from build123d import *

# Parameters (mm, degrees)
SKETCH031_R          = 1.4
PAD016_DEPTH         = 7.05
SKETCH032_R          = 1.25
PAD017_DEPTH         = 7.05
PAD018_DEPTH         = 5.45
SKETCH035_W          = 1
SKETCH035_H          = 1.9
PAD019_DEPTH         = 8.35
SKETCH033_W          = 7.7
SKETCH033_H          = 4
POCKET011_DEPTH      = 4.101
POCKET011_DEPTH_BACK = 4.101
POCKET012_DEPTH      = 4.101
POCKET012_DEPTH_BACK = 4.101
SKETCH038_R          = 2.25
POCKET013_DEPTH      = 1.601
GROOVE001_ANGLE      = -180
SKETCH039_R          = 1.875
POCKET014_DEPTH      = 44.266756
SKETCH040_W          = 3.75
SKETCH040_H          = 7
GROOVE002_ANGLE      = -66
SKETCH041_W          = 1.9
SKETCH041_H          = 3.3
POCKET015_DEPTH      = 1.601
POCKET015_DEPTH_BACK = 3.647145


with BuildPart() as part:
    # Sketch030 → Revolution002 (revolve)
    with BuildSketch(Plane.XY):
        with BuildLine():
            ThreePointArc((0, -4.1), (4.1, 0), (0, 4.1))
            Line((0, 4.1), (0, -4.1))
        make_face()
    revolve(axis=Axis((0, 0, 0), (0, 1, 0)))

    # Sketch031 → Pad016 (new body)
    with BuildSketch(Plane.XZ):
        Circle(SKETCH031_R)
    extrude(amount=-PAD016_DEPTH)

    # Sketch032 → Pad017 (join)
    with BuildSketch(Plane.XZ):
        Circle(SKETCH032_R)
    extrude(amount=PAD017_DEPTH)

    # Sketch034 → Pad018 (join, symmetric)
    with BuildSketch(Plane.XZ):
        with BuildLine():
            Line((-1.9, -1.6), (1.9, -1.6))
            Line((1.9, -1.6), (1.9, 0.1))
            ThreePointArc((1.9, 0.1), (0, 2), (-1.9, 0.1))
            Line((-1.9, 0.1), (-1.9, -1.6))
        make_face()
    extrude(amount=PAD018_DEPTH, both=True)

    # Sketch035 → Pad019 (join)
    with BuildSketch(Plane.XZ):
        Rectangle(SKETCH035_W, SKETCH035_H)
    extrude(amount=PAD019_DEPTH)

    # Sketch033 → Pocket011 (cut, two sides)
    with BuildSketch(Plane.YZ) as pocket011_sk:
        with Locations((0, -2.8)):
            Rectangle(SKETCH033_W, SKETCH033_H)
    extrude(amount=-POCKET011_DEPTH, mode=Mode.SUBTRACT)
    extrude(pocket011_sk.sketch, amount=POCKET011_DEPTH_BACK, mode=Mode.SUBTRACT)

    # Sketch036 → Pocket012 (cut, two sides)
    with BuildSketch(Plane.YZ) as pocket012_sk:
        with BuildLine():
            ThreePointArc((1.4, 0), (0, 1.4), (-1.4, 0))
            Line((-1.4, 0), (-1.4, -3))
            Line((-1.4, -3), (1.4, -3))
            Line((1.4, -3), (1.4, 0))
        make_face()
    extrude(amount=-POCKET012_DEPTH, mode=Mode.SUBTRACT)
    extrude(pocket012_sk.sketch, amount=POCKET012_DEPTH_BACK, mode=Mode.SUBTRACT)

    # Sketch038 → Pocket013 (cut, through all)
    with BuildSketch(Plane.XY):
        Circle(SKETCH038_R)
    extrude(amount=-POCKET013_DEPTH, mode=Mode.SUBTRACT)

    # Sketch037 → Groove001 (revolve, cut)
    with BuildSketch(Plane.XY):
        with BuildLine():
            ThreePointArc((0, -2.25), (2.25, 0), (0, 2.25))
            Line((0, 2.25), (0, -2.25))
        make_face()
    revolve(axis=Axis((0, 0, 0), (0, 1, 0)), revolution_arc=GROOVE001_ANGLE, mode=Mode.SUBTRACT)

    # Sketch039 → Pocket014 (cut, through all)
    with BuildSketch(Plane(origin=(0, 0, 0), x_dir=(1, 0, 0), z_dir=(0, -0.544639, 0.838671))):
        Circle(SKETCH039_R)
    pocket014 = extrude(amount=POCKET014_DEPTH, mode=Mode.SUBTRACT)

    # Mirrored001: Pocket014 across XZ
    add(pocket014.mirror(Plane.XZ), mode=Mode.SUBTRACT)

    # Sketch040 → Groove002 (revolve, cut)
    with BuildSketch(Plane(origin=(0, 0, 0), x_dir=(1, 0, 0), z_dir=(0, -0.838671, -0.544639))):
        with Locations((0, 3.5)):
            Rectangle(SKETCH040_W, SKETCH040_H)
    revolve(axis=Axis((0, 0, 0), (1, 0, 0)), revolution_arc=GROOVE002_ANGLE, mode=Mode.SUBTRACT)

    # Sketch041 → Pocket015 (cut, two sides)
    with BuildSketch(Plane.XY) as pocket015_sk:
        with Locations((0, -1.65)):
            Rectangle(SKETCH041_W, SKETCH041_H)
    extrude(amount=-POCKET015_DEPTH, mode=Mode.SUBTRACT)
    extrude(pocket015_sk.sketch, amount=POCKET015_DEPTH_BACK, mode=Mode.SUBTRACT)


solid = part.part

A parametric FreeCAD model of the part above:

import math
import FreeCAD as App
import Part
import Sketcher
from FreeCAD import Vector
Q = App.Units.Quantity

doc = App.newDocument("Part")
params = doc.addObject("Spreadsheet::Sheet", "Params")
for row, (alias, value) in enumerate([
    ("sketch1_radius", "4.1 mm"),
    ("revolution_angle", "360 deg"),
    ("sketch2_diameter", "2.8 mm"),
    ("pad1_length", "7.05 mm"),
    ("sketch3_diameter", "2.5 mm"),
    ("pad2_length", "7.05 mm"),
    ("sketch4_radius", "1.9 mm"),
    ("sketch4_height", "1.7 mm"),
    ("pad3_length", "10.9 mm"),
    ("sketch5_width", "1 mm"),
    ("sketch5_height", "1.9 mm"),
    ("pad4_length", "8.35 mm"),
    ("sketch6_height", "4 mm"),
    ("sketch6_width", "7.7 mm"),
    ("sketch7_radius", "1.4 mm"),
    ("sketch7_height", "3 mm"),
    ("sketch8_diameter", "4.5 mm"),
    ("sketch9_radius", "2.25 mm"),
    ("groove_angle", "180 deg"),
    ("sketch10_diameter", "3.75 mm"),
    ("sketch11_height", "7 mm"),
    ("sketch11_width", "3.75 mm"),
    ("groove2_angle", "66 deg"),
    ("sketch12_width", "1.9 mm"),
    ("sketch12_height", "3.3 mm"),
], start=1):
    params.set(f"A{row}", alias)
    params.set(f"B{row}", "=" + value)
    params.setAlias(f"B{row}", alias)

body = doc.addObject("PartDesign::Body", "Body")

sketch1 = body.newObject("Sketcher::SketchObject", "Sketch")
sketch1.AttachmentSupport = (doc.getObject("XY_Plane"), [""])
sketch1.MapMode = "FlatFace"
sketch1.addGeometry(Part.ArcOfCircle(Part.Circle(Vector(0, 0, 0), Vector(0, 0, 1), 4.1), math.radians(-90), math.radians(90)), False)
sketch1.addGeometry(Part.LineSegment(Vector(0, 4.1, 0), Vector(0, -4.1, 0)), False)
sketch1.addConstraint(Sketcher.Constraint("Coincident", 0, 1, 1, 2))
sketch1.addConstraint(Sketcher.Constraint("Coincident", 1, 1, 0, 2))
sketch1.addConstraint(Sketcher.Constraint("Vertical", 1))
sketch1.addConstraint(Sketcher.Constraint("Coincident", 0, 3, -1, 1))
sketch1.addConstraint(Sketcher.Constraint("PointOnObject", 0, 1, -2))
sketch1.addConstraint(Sketcher.Constraint("Radius", 0, Q("4.1 mm")))
sketch1.setExpression("Constraints[5]", "Params.sketch1_radius")
revolution = body.newObject("PartDesign::Revolution", "Revolution")
revolution.Profile = sketch1
revolution.ReferenceAxis = (sketch1, ["V_Axis"])
revolution.setExpression("Angle", "Params.revolution_angle")

sketch2 = body.newObject("Sketcher::SketchObject", "Sketch001")
sketch2.AttachmentSupport = (doc.getObject("XZ_Plane"), [""])
sketch2.MapMode = "FlatFace"
sketch2.addGeometry(Part.Circle(Vector(0, 0, 0), Vector(0, 0, 1), 1.4), False)
sketch2.addConstraint(Sketcher.Constraint("Coincident", 0, 3, -1, 1))
sketch2.addConstraint(Sketcher.Constraint("Diameter", 0, Q("2.8 mm")))
sketch2.setExpression("Constraints[1]", "Params.sketch2_diameter")
pad1 = body.newObject("PartDesign::Pad", "Pad")
pad1.Profile = sketch2
pad1.setExpression("Length", "Params.pad1_length")
pad1.Reversed = True

sketch3 = body.newObject("Sketcher::SketchObject", "Sketch002")
sketch3.AttachmentSupport = (doc.getObject("XZ_Plane"), [""])
sketch3.MapMode = "FlatFace"
sketch3.addGeometry(Part.Circle(Vector(0, 0, 0), Vector(0, 0, 1), 1.2), False)
sketch3.addConstraint(Sketcher.Constraint("Coincident", 0, 3, -1, 1))
sketch3.addConstraint(Sketcher.Constraint("Diameter", 0, Q("2.5 mm")))
sketch3.setExpression("Constraints[1]", "Params.sketch3_diameter")
pad2 = body.newObject("PartDesign::Pad", "Pad001")
pad2.Profile = sketch3
pad2.setExpression("Length", "Params.pad2_length")

sketch4 = body.newObject("Sketcher::SketchObject", "Sketch003")
sketch4.AttachmentSupport = (doc.getObject("XZ_Plane"), [""])
sketch4.MapMode = "FlatFace"
sketch4.addGeometry(Part.LineSegment(Vector(-1.9, -1.6, 0), Vector(1.9, -1.6, 0)), False)
sketch4.addGeometry(Part.LineSegment(Vector(1.9, -1.6, 0), Vector(1.9, 0.1, 0)), False)
sketch4.addGeometry(Part.ArcOfCircle(Part.Circle(Vector(0, 0.1, 0), Vector(0, 0, 1), 1.9), math.radians(0), math.radians(180)), False)
sketch4.addGeometry(Part.LineSegment(Vector(-1.9, 0.1, 0), Vector(-1.9, -1.6, 0)), False)
sketch4.addConstraint(Sketcher.Constraint("Coincident", 0, 2, 1, 1))
sketch4.addConstraint(Sketcher.Constraint("Tangent", 1, 2, 2, 1))
sketch4.addConstraint(Sketcher.Constraint("Tangent", 2, 2, 3, 1))
sketch4.addConstraint(Sketcher.Constraint("Coincident", 3, 2, 0, 1))
sketch4.addConstraint(Sketcher.Constraint("Horizontal", 0))
sketch4.addConstraint(Sketcher.Constraint("Vertical", 1))
sketch4.addConstraint(Sketcher.Constraint("Vertical", 3))
sketch4.addConstraint(Sketcher.Constraint("PointOnObject", 2, 3, -2))
sketch4.addConstraint(Sketcher.Constraint("Radius", 2, Q("1.9 mm")))
sketch4.addConstraint(Sketcher.Constraint("DistanceY", 1, 1, 1, 2, Q("1.7 mm")))
sketch4.addConstraint(Sketcher.Constraint("DistanceY", -1, 1, 2, 3, Q("0.1 mm")))
sketch4.setExpression("Constraints[8]", "Params.sketch4_radius")
sketch4.setExpression("Constraints[9]", "Params.sketch4_height")
pad3 = body.newObject("PartDesign::Pad", "Pad002")
pad3.Profile = sketch4
pad3.setExpression("Length", "Params.pad3_length")
pad3.Midplane = True

sketch5 = body.newObject("Sketcher::SketchObject", "Sketch004")
sketch5.AttachmentSupport = (doc.getObject("XZ_Plane"), [""])
sketch5.MapMode = "FlatFace"
sketch5.addGeometry(Part.LineSegment(Vector(-0.5, 0.9, 0), Vector(-0.5, -0.9, 0)), False)
sketch5.addGeometry(Part.LineSegment(Vector(-0.5, -0.9, 0), Vector(0.5, -0.9, 0)), False)
sketch5.addGeometry(Part.LineSegment(Vector(0.5, -0.9, 0), Vector(0.5, 0.9, 0)), False)
sketch5.addGeometry(Part.LineSegment(Vector(0.5, 0.9, 0), Vector(-0.5, 0.9, 0)), False)
sketch5.addConstraint(Sketcher.Constraint("Coincident", 0, 2, 1, 1))
sketch5.addConstraint(Sketcher.Constraint("Coincident", 1, 2, 2, 1))
sketch5.addConstraint(Sketcher.Constraint("Coincident", 2, 2, 3, 1))
sketch5.addConstraint(Sketcher.Constraint("Coincident", 3, 2, 0, 1))
sketch5.addConstraint(Sketcher.Constraint("Vertical", 0))
sketch5.addConstraint(Sketcher.Constraint("Horizontal", 1))
sketch5.addConstraint(Sketcher.Constraint("Vertical", 2))
sketch5.addConstraint(Sketcher.Constraint("Horizontal", 3))
sketch5.addConstraint(Sketcher.Constraint("Symmetric", 0, 2, 2, 2, -1, 1))
sketch5.addConstraint(Sketcher.Constraint("DistanceX", 1, 1, 1, 2, Q("1 mm")))
sketch5.addConstraint(Sketcher.Constraint("DistanceY", 0, 2, 0, 1, Q("1.9 mm")))
sketch5.setExpression("Constraints[9]", "Params.sketch5_width")
sketch5.setExpression("Constraints[10]", "Params.sketch5_height")
pad4 = body.newObject("PartDesign::Pad", "Pad003")
pad4.Profile = sketch5
pad4.setExpression("Length", "Params.pad4_length")

sketch6 = body.newObject("Sketcher::SketchObject", "Sketch005")
sketch6.AttachmentSupport = (doc.getObject("YZ_Plane"), [""])
sketch6.MapMode = "FlatFace"
sketch6.addGeometry(Part.LineSegment(Vector(-3.9, -0.8, 0), Vector(-3.9, -4.8, 0)), False)
sketch6.addGeometry(Part.LineSegment(Vector(-3.9, -4.8, 0), Vector(3.9, -4.8, 0)), False)
sketch6.addGeometry(Part.LineSegment(Vector(3.9, -4.8, 0), Vector(3.9, -0.8, 0)), False)
sketch6.addGeometry(Part.LineSegment(Vector(3.9, -0.8, 0), Vector(-3.9, -0.8, 0)), False)
sketch6.addConstraint(Sketcher.Constraint("Coincident", 0, 2, 1, 1))
sketch6.addConstraint(Sketcher.Constraint("Coincident", 1, 2, 2, 1))
sketch6.addConstraint(Sketcher.Constraint("Coincident", 2, 2, 3, 1))
sketch6.addConstraint(Sketcher.Constraint("Coincident", 3, 2, 0, 1))
sketch6.addConstraint(Sketcher.Constraint("Vertical", 0))
sketch6.addConstraint(Sketcher.Constraint("Horizontal", 1))
sketch6.addConstraint(Sketcher.Constraint("Vertical", 2))
sketch6.addConstraint(Sketcher.Constraint("Horizontal", 3))
sketch6.addConstraint(Sketcher.Constraint("DistanceY", 0, 2, 0, 1, Q("4 mm")))
sketch6.addConstraint(Sketcher.Constraint("DistanceX", 1, 1, 1, 2, Q("7.7 mm")))
sketch6.addConstraint(Sketcher.Constraint("DistanceY", 0, 2, -1, 1, Q("4.8 mm")))
sketch6.addConstraint(Sketcher.Constraint("DistanceX", 0, 2, -1, 1, Q("3.85 mm")))
sketch6.setExpression("Constraints[8]", "Params.sketch6_height")
sketch6.setExpression("Constraints[9]", "Params.sketch6_width")
pocket1 = body.newObject("PartDesign::Pocket", "Pocket")
pocket1.Profile = sketch6
pocket1.Type = "ThroughAll"
pocket1.Midplane = True

sketch7 = body.newObject("Sketcher::SketchObject", "Sketch006")
sketch7.AttachmentSupport = (doc.getObject("YZ_Plane"), [""])
sketch7.MapMode = "FlatFace"
sketch7.addGeometry(Part.ArcOfCircle(Part.Circle(Vector(0, 0, 0), Vector(0, 0, 1), 1.4), math.radians(0), math.radians(180)), False)
sketch7.addGeometry(Part.LineSegment(Vector(-1.4, 0, 0), Vector(-1.4, -3, 0)), False)
sketch7.addGeometry(Part.LineSegment(Vector(-1.4, -3, 0), Vector(1.4, -3, 0)), False)
sketch7.addGeometry(Part.LineSegment(Vector(1.4, -3, 0), Vector(1.4, 0, 0)), False)
sketch7.addConstraint(Sketcher.Constraint("Tangent", 0, 2, 1, 1))
sketch7.addConstraint(Sketcher.Constraint("Coincident", 1, 2, 2, 1))
sketch7.addConstraint(Sketcher.Constraint("Coincident", 2, 2, 3, 1))
sketch7.addConstraint(Sketcher.Constraint("Tangent", 3, 2, 0, 1))
sketch7.addConstraint(Sketcher.Constraint("Vertical", 1))
sketch7.addConstraint(Sketcher.Constraint("Horizontal", 2))
sketch7.addConstraint(Sketcher.Constraint("Vertical", 3))
sketch7.addConstraint(Sketcher.Constraint("Coincident", 0, 3, -1, 1))
sketch7.addConstraint(Sketcher.Constraint("Radius", 0, Q("1.4 mm")))
sketch7.addConstraint(Sketcher.Constraint("DistanceY", 1, 2, 1, 1, Q("3 mm")))
sketch7.setExpression("Constraints[8]", "Params.sketch7_radius")
sketch7.setExpression("Constraints[9]", "Params.sketch7_height")
pocket2 = body.newObject("PartDesign::Pocket", "Pocket001")
pocket2.Profile = sketch7
pocket2.Type = "ThroughAll"
pocket2.Midplane = True

sketch8 = body.newObject("Sketcher::SketchObject", "Sketch007")
sketch8.AttachmentSupport = (doc.getObject("XY_Plane"), [""])
sketch8.MapMode = "FlatFace"
sketch8.addGeometry(Part.Circle(Vector(0, 0, 0), Vector(0, 0, 1), 2.2), False)
sketch8.addConstraint(Sketcher.Constraint("Coincident", 0, 3, -1, 1))
sketch8.addConstraint(Sketcher.Constraint("Diameter", 0, Q("4.5 mm")))
sketch8.setExpression("Constraints[1]", "Params.sketch8_diameter")
pocket3 = body.newObject("PartDesign::Pocket", "Pocket002")
pocket3.Profile = sketch8
pocket3.Type = "ThroughAll"

sketch9 = body.newObject("Sketcher::SketchObject", "Sketch008")
sketch9.AttachmentSupport = (doc.getObject("XY_Plane"), [""])
sketch9.MapMode = "FlatFace"
sketch9.addGeometry(Part.ArcOfCircle(Part.Circle(Vector(0, 0, 0), Vector(0, 0, 1), 2.2), math.radians(-90), math.radians(90)), False)
sketch9.addGeometry(Part.LineSegment(Vector(0, 2.2, 0), Vector(0, -2.2, 0)), False)
sketch9.addConstraint(Sketcher.Constraint("Coincident", 0, 1, 1, 2))
sketch9.addConstraint(Sketcher.Constraint("Coincident", 1, 1, 0, 2))
sketch9.addConstraint(Sketcher.Constraint("Vertical", 1))
sketch9.addConstraint(Sketcher.Constraint("Coincident", 0, 3, -1, 1))
sketch9.addConstraint(Sketcher.Constraint("PointOnObject", 0, 1, -2))
sketch9.addConstraint(Sketcher.Constraint("Radius", 0, Q("2.25 mm")))
sketch9.setExpression("Constraints[5]", "Params.sketch9_radius")
groove = body.newObject("PartDesign::Groove", "Groove")
groove.Profile = sketch9
groove.ReferenceAxis = (sketch9, ["V_Axis"])
groove.setExpression("Angle", "Params.groove_angle")
groove.Reversed = True

sketch10 = body.newObject("Sketcher::SketchObject", "Sketch009")
sketch10.Placement = App.Placement(Vector(0, 0, 0), App.Rotation(Vector(1, 0, 0), Vector(0, 0.838670712, 0.544638813), Vector(0, -0.544638813, 0.838670712), "ZXY"))
sketch10.addGeometry(Part.Circle(Vector(0, 0, 0), Vector(0, 0, 1), 1.9), False)
sketch10.addConstraint(Sketcher.Constraint("Coincident", 0, 3, -1, 1))
sketch10.addConstraint(Sketcher.Constraint("Diameter", 0, Q("3.75 mm")))
sketch10.setExpression("Constraints[1]", "Params.sketch10_diameter")
pocket4 = body.newObject("PartDesign::Pocket", "Pocket003")
pocket4.Profile = sketch10
pocket4.Type = "ThroughAll"
pocket4.Reversed = True
doc.recompute()

mirrored = body.newObject("PartDesign::Mirrored", "Mirrored")
mirrored.Originals = [pocket4]
mirrored.MirrorPlane = (doc.getObject("XZ_Plane"), [""])
body.Tip = mirrored

sketch11 = body.newObject("Sketcher::SketchObject", "Sketch010")
sketch11.Placement = App.Placement(Vector(0, 0, 0), App.Rotation(Vector(1, 0, 0), Vector(0, -0.544638813, 0.838670712), Vector(0, -0.838670712, -0.544638813), "ZXY"))
sketch11.addGeometry(Part.LineSegment(Vector(-1.9, 7, 0), Vector(-1.9, 0, 0)), False)
sketch11.addGeometry(Part.LineSegment(Vector(-1.9, 0, 0), Vector(1.9, 0, 0)), False)
sketch11.addGeometry(Part.LineSegment(Vector(1.9, 0, 0), Vector(1.9, 7, 0)), False)
sketch11.addGeometry(Part.LineSegment(Vector(1.9, 7, 0), Vector(-1.9, 7, 0)), False)
sketch11.addConstraint(Sketcher.Constraint("Coincident", 0, 2, 1, 1))
sketch11.addConstraint(Sketcher.Constraint("Coincident", 1, 2, 2, 1))
sketch11.addConstraint(Sketcher.Constraint("Coincident", 2, 2, 3, 1))
sketch11.addConstraint(Sketcher.Constraint("Coincident", 3, 2, 0, 1))
sketch11.addConstraint(Sketcher.Constraint("Vertical", 0))
sketch11.addConstraint(Sketcher.Constraint("Horizontal", 1))
sketch11.addConstraint(Sketcher.Constraint("Vertical", 2))
sketch11.addConstraint(Sketcher.Constraint("Horizontal", 3))
sketch11.addConstraint(Sketcher.Constraint("Symmetric", 0, 2, 1, 2, -1, 1))
sketch11.addConstraint(Sketcher.Constraint("DistanceY", 0, 2, 0, 1, Q("7 mm")))
sketch11.addConstraint(Sketcher.Constraint("DistanceX", 1, 1, 1, 2, Q("3.75 mm")))
sketch11.setExpression("Constraints[9]", "Params.sketch11_height")
sketch11.setExpression("Constraints[10]", "Params.sketch11_width")
groove2 = body.newObject("PartDesign::Groove", "Groove001")
groove2.Profile = sketch11
groove2.ReferenceAxis = (sketch11, ["H_Axis"])
groove2.setExpression("Angle", "Params.groove2_angle")
groove2.Reversed = True

sketch12 = body.newObject("Sketcher::SketchObject", "Sketch011")
sketch12.AttachmentSupport = (doc.getObject("XY_Plane"), [""])
sketch12.MapMode = "FlatFace"
sketch12.addGeometry(Part.LineSegment(Vector(-0.9, 0, 0), Vector(-0.9, -3.3, 0)), False)
sketch12.addGeometry(Part.LineSegment(Vector(-0.9, -3.3, 0), Vector(0.9, -3.3, 0)), False)
sketch12.addGeometry(Part.LineSegment(Vector(0.9, -3.3, 0), Vector(0.9, 0, 0)), False)
sketch12.addGeometry(Part.LineSegment(Vector(0.9, 0, 0), Vector(-0.9, 0, 0)), False)
sketch12.addConstraint(Sketcher.Constraint("Coincident", 0, 2, 1, 1))
sketch12.addConstraint(Sketcher.Constraint("Coincident", 1, 2, 2, 1))
sketch12.addConstraint(Sketcher.Constraint("Coincident", 2, 2, 3, 1))
sketch12.addConstraint(Sketcher.Constraint("Coincident", 3, 2, 0, 1))
sketch12.addConstraint(Sketcher.Constraint("Vertical", 0))
sketch12.addConstraint(Sketcher.Constraint("Horizontal", 1))
sketch12.addConstraint(Sketcher.Constraint("Vertical", 2))
sketch12.addConstraint(Sketcher.Constraint("Horizontal", 3))
sketch12.addConstraint(Sketcher.Constraint("Symmetric", 2, 2, 3, 2, -1, 1))
sketch12.addConstraint(Sketcher.Constraint("DistanceX", 1, 1, 1, 2, Q("1.9 mm")))
sketch12.addConstraint(Sketcher.Constraint("DistanceY", 0, 2, 0, 1, Q("3.3 mm")))
sketch12.setExpression("Constraints[9]", "Params.sketch12_width")
sketch12.setExpression("Constraints[10]", "Params.sketch12_height")
pocket5 = body.newObject("PartDesign::Pocket", "Pocket004")
pocket5.Profile = sketch12
pocket5.Type = "ThroughAll"
pocket5.Midplane = True

doc.recompute()
